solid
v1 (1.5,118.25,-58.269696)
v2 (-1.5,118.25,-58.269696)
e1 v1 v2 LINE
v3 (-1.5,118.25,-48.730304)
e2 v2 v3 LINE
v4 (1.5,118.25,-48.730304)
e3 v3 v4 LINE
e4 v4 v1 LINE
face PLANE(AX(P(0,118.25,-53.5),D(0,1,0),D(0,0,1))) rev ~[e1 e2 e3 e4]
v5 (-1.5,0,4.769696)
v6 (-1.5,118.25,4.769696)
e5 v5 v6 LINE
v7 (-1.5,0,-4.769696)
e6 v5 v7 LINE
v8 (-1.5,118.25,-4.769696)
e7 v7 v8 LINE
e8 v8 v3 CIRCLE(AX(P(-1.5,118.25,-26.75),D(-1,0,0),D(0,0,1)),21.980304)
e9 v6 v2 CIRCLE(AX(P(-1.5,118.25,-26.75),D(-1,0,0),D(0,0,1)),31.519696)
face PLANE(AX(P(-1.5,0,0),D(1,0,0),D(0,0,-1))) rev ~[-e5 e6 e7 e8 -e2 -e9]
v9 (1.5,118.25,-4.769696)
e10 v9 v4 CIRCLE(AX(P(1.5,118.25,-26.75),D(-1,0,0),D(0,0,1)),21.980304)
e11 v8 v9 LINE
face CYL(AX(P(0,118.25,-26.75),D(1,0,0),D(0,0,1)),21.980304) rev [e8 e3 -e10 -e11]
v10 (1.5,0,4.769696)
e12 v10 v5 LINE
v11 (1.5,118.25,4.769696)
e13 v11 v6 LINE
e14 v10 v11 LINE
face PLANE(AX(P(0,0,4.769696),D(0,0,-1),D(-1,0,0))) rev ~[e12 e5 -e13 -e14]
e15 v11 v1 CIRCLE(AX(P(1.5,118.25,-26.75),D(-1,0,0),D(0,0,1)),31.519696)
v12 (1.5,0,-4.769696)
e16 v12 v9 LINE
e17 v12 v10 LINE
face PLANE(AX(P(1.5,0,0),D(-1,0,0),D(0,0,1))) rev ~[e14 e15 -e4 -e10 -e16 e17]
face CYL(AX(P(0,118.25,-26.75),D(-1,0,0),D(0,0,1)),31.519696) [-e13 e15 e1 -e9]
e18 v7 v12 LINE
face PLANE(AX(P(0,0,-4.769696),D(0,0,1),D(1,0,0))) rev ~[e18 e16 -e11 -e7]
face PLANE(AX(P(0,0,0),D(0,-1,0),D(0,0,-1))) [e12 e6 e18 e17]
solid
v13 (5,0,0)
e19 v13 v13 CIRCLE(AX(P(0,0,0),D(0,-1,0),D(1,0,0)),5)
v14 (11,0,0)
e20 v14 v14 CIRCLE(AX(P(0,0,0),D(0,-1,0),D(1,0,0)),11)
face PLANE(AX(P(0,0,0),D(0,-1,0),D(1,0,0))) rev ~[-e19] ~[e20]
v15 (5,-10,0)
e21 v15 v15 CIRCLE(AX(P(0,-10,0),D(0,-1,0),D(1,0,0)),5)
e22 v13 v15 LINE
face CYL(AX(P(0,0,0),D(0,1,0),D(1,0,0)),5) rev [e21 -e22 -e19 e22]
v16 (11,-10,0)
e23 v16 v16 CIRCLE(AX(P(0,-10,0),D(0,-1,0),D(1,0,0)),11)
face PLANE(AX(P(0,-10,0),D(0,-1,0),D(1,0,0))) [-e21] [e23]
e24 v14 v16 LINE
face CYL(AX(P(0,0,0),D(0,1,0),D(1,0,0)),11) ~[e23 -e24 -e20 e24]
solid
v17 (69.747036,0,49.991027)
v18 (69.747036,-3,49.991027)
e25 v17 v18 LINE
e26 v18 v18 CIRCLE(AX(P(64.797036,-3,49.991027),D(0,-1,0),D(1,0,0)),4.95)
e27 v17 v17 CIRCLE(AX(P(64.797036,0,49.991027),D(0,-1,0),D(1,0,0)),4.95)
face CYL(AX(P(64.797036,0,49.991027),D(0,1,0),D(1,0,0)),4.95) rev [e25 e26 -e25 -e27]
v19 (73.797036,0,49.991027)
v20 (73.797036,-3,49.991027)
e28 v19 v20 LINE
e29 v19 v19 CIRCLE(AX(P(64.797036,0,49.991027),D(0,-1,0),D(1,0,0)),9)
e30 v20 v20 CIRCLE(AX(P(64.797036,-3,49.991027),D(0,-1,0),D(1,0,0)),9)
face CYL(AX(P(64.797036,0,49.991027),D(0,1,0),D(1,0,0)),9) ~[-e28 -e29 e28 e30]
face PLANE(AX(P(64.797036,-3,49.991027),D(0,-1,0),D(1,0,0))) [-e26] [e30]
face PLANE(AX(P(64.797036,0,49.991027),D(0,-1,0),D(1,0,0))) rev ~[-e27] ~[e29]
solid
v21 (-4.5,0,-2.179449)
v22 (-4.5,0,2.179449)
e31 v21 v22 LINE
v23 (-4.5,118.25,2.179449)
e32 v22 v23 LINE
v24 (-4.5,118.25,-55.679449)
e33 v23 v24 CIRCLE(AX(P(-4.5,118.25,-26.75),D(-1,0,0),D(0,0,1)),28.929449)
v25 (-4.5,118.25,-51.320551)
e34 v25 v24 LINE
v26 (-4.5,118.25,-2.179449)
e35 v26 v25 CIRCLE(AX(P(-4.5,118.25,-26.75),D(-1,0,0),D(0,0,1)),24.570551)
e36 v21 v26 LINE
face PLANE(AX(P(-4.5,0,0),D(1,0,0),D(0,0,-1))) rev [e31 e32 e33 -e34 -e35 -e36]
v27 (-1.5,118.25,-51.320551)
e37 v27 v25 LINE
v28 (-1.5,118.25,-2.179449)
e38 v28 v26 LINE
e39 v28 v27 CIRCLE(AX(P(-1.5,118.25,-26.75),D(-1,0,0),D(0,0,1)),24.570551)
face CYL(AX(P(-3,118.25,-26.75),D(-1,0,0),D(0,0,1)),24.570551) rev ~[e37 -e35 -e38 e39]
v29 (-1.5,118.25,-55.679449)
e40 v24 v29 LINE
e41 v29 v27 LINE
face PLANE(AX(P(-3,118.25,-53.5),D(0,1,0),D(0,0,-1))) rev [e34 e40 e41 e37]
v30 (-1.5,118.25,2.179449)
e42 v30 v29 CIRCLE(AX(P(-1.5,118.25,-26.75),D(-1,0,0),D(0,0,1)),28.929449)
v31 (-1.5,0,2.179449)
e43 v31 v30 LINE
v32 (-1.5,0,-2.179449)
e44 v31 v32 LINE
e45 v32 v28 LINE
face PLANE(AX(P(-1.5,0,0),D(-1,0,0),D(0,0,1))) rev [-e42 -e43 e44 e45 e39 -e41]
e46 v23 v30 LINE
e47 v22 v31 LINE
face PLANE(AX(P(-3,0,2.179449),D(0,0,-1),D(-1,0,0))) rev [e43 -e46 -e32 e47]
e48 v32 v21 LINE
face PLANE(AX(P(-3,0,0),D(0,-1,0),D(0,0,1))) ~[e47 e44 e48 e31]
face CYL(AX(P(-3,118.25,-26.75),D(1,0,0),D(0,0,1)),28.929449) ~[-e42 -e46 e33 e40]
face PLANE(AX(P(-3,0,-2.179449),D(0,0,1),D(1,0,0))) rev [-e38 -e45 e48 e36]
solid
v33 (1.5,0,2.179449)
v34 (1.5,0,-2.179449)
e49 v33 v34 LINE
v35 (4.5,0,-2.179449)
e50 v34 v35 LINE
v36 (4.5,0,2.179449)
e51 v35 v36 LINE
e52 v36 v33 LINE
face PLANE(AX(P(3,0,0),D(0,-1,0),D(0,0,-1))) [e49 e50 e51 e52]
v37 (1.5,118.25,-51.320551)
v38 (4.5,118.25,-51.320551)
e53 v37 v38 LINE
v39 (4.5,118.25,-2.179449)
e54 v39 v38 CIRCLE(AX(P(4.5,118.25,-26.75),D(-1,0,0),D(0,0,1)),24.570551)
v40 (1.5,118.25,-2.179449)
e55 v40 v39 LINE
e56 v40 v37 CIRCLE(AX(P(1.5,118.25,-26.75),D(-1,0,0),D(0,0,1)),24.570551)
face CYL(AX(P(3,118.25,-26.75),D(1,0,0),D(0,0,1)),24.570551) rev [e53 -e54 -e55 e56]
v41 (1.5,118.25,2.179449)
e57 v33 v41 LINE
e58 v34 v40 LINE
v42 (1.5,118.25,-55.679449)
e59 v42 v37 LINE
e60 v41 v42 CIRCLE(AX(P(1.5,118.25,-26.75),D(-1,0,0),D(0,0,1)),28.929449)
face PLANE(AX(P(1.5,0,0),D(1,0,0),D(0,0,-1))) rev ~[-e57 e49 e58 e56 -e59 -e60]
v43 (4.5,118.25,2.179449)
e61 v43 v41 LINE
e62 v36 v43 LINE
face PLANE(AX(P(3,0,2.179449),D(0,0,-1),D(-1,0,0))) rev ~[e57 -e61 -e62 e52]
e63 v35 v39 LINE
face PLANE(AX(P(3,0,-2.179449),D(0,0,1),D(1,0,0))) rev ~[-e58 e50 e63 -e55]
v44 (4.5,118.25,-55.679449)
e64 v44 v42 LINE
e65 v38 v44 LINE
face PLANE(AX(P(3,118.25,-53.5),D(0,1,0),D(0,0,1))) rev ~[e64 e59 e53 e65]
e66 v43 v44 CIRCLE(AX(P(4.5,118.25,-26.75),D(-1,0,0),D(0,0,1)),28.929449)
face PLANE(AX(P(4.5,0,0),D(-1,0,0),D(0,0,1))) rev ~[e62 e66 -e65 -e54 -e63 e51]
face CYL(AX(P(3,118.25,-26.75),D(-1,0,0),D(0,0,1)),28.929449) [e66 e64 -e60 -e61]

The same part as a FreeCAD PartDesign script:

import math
import FreeCAD as App
import Part
import Sketcher
from FreeCAD import Vector

doc = App.newDocument("Part")
body = doc.addObject("PartDesign::Body", "Body")

sketch1 = body.newObject("Sketcher::SketchObject", "Sketch")
sketch1.AttachmentSupport = (doc.getObject("XZ_Plane"), [""])
sketch1.MapMode = "FlatFace"
sketch1.addGeometry(Part.Circle(Vector(0, 0, 0), Vector(0, 0, 1), 11), False)
sketch1.addGeometry(Part.Circle(Vector(0, 0, 0), Vector(0, 0, 1), 5), False)
sketch1.addConstraint(Sketcher.Constraint("Coincident", 0, 3, -1, 1))
sketch1.addConstraint(Sketcher.Constraint("Coincident", 1, 3, -1, 1))
sketch1.addConstraint(Sketcher.Constraint("Diameter", 0, 22.0))
sketch1.addConstraint(Sketcher.Constraint("Diameter", 1, 10.0))
pad1 = body.newObject("PartDesign::Pad", "Pad")
pad1.Profile = sketch1
pad1.Length = 10
body2 = doc.addObject("PartDesign::Body", "Body001")

sketch2 = body2.newObject("Sketcher::SketchObject", "Sketch001")
sketch2.AttachmentSupport = (doc.getObject("XZ_Plane001"), [""])
sketch2.MapMode = "FlatFace"
sketch2.addGeometry(Part.LineSegment(Vector(-1.5, 4.8, 0), Vector(-1.5, -4.8, 0)), False)
sketch2.addGeometry(Part.LineSegment(Vector(-1.5, -4.8, 0), Vector(1.5, -4.8, 0)), False)
sketch2.addGeometry(Part.LineSegment(Vector(1.5, -4.8, 0), Vector(1.5, 4.8, 0)), False)
sketch2.addGeometry(Part.LineSegment(Vector(1.5, 4.8, 0), Vector(-1.5, 4.8, 0)), False)
sketch2.addConstraint(Sketcher.Constraint("Coincident", 0, 2, 1, 1))
sketch2.addConstraint(Sketcher.Constraint("Coincident", 1, 2, 2, 1))
sketch2.addConstraint(Sketcher.Constraint("Coincident", 2, 2, 3, 1))
sketch2.addConstraint(Sketcher.Constraint("Coincident", 3, 2, 0, 1))
sketch2.addConstraint(Sketcher.Constraint("Vertical", 0))
sketch2.addConstraint(Sketcher.Constraint("Horizontal", 1))
sketch2.addConstraint(Sketcher.Constraint("Vertical", 2))
sketch2.addConstraint(Sketcher.Constraint("Horizontal", 3))
sketch2.addConstraint(Sketcher.Constraint("Symmetric", 0, 2, 2, 2, -1, 1))
sketch2.addConstraint(Sketcher.Constraint("DistanceX", 1, 1, 1, 2, 3.0))
sketch2.addConstraint(Sketcher.Constraint("DistanceY", 0, 2, 0, 1, 9.539392))

sketch3 = body2.newObject("Sketcher::SketchObject", "Sketch002")
sketch3.AttachmentSupport = (doc.getObject("YZ_Plane001"), [""])
sketch3.MapMode = "FlatFace"
sketch3.addGeometry(Part.LineSegment(Vector(0, 0, 0), Vector(118, 0, 0)), False)
sketch3.addGeometry(Part.ArcOfCircle(Part.Circle(Vector(118, -27, 0), Vector(0, 0, 1), 27), math.radians(-90), math.radians(90)), False)
sketch3.addConstraint(Sketcher.Constraint("Tangent", 0, 2, 1, 2))
sketch3.addConstraint(Sketcher.Constraint("Horizontal", 0))
sketch3.addConstraint(Sketcher.Constraint("Coincident", 0, 1, -1, 1))
sketch3.addConstraint(Sketcher.Constraint("Vertical", 0, 2, 1, 1))
sketch3.addConstraint(Sketcher.Constraint("Radius", 1, 26.75))
sketch3.addConstraint(Sketcher.Constraint("DistanceX", 0, 1, 0, 2, 118.25))
doc.recompute()

additivepipe = body2.newObject("PartDesign::AdditivePipe", "AdditivePipe")
additivepipe.Profile = sketch2
additivepipe.Spine = (sketch3, ["Edge1", "Edge2"])
body3 = doc.addObject("PartDesign::Body", "Body002")

sketch4 = body3.newObject("Sketcher::SketchObject", "Sketch003")
sketch4.AttachmentSupport = (doc.getObject("XZ_Plane002"), [""])
sketch4.MapMode = "FlatFace"
sketch4.addGeometry(Part.LineSegment(Vector(1.5, 2.2, 0), Vector(1.5, -2.2, 0)), False)
sketch4.addGeometry(Part.LineSegment(Vector(1.5, -2.2, 0), Vector(4.5, -2.2, 0)), False)
sketch4.addGeometry(Part.LineSegment(Vector(4.5, -2.2, 0), Vector(4.5, 2.2, 0)), False)
sketch4.addGeometry(Part.LineSegment(Vector(4.5, 2.2, 0), Vector(1.5, 2.2, 0)), False)
sketch4.addConstraint(Sketcher.Constraint("Coincident", 0, 2, 1, 1))
sketch4.addConstraint(Sketcher.Constraint("Coincident", 1, 2, 2, 1))
sketch4.addConstraint(Sketcher.Constraint("Coincident", 2, 2, 3, 1))
sketch4.addConstraint(Sketcher.Constraint("Coincident", 3, 2, 0, 1))
sketch4.addConstraint(Sketcher.Constraint("Vertical", 0))
sketch4.addConstraint(Sketcher.Constraint("Horizontal", 1))
sketch4.addConstraint(Sketcher.Constraint("Vertical", 2))
sketch4.addConstraint(Sketcher.Constraint("Horizontal", 3))
sketch4.addConstraint(Sketcher.Constraint("DistanceX", 1, 1, 1, 2, 3.0))
sketch4.addConstraint(Sketcher.Constraint("DistanceX", -1, 1, 0, 2, 1.5))
sketch4.addConstraint(Sketcher.Constraint("DistanceY", 0, 2, 0, 1, 4.358899))
sketch4.addConstraint(Sketcher.Constraint("DistanceY", 0, 2, -1, 1, 2.179449))

sketch5 = body3.newObject("Sketcher::SketchObject", "Sketch004")
sketch5.AttachmentSupport = (doc.getObject("YZ_Plane002"), [""])
sketch5.MapMode = "FlatFace"
sketch5.addGeometry(Part.LineSegment(Vector(0, 0, 0), Vector(118, 0, 0)), False)
sketch5.addGeometry(Part.ArcOfCircle(Part.Circle(Vector(118, -27, 0), Vector(0, 0, 1), 27), math.radians(-90), math.radians(90)), False)
sketch5.addConstraint(Sketcher.Constraint("Tangent", 0, 2, 1, 2))
sketch5.addConstraint(Sketcher.Constraint("Horizontal", 0))
sketch5.addConstraint(Sketcher.Constraint("Coincident", 0, 1, -1, 1))
sketch5.addConstraint(Sketcher.Constraint("Vertical", 0, 2, 1, 1))
sketch5.addConstraint(Sketcher.Constraint("Radius", 1, 26.75))
sketch5.addConstraint(Sketcher.Constraint("DistanceX", 0, 1, 0, 2, 118.25))
doc.recompute()

additivepipe2 = body3.newObject("PartDesign::AdditivePipe", "AdditivePipe001")
additivepipe2.Profile = sketch4
additivepipe2.Spine = (sketch5, ["Edge1", "Edge2"])
body4 = doc.addObject("PartDesign::Body", "Body003")
doc.recompute()

mirroring = doc.addObject("Part::Mirroring", "Mirroring")
mirroring.Source = body3
mirroring.Base = Vector(0, 0, 0)
mirroring.Normal = Vector(1, 0, 0)
body4.BaseFeature = mirroring
doc.recompute()
body5 = doc.addObject("PartDesign::Body", "Body004")

sketch6 = body5.newObject("Sketcher::SketchObject", "Sketch005")
sketch6.AttachmentSupport = (doc.getObject("XZ_Plane004"), [""])
sketch6.MapMode = "FlatFace"
sketch6.addGeometry(Part.Circle(Vector(64.8, 50, 0), Vector(0, 0, 1), 9), False)
sketch6.addGeometry(Part.Circle(Vector(64.8, 50, 0), Vector(0, 0, 1), 5), False)
sketch6.addConstraint(Sketcher.Constraint("Coincident", 1, 3, 0, 3))
sketch6.addConstraint(Sketcher.Constraint("Diameter", 0, 18.0))
sketch6.addConstraint(Sketcher.Constraint("Diameter", 1, 9.9))
sketch6.addConstraint(Sketcher.Constraint("DistanceX", -1, 1, 0, 3, 64.797036))
sketch6.addConstraint(Sketcher.Constraint("DistanceY", -1, 1, 0, 3, 49.991027))
pad2 = body5.newObject("PartDesign::Pad", "Pad001")
pad2.Profile = sketch6
pad2.Length = 3
mirroring.Visibility = False

doc.recompute()
